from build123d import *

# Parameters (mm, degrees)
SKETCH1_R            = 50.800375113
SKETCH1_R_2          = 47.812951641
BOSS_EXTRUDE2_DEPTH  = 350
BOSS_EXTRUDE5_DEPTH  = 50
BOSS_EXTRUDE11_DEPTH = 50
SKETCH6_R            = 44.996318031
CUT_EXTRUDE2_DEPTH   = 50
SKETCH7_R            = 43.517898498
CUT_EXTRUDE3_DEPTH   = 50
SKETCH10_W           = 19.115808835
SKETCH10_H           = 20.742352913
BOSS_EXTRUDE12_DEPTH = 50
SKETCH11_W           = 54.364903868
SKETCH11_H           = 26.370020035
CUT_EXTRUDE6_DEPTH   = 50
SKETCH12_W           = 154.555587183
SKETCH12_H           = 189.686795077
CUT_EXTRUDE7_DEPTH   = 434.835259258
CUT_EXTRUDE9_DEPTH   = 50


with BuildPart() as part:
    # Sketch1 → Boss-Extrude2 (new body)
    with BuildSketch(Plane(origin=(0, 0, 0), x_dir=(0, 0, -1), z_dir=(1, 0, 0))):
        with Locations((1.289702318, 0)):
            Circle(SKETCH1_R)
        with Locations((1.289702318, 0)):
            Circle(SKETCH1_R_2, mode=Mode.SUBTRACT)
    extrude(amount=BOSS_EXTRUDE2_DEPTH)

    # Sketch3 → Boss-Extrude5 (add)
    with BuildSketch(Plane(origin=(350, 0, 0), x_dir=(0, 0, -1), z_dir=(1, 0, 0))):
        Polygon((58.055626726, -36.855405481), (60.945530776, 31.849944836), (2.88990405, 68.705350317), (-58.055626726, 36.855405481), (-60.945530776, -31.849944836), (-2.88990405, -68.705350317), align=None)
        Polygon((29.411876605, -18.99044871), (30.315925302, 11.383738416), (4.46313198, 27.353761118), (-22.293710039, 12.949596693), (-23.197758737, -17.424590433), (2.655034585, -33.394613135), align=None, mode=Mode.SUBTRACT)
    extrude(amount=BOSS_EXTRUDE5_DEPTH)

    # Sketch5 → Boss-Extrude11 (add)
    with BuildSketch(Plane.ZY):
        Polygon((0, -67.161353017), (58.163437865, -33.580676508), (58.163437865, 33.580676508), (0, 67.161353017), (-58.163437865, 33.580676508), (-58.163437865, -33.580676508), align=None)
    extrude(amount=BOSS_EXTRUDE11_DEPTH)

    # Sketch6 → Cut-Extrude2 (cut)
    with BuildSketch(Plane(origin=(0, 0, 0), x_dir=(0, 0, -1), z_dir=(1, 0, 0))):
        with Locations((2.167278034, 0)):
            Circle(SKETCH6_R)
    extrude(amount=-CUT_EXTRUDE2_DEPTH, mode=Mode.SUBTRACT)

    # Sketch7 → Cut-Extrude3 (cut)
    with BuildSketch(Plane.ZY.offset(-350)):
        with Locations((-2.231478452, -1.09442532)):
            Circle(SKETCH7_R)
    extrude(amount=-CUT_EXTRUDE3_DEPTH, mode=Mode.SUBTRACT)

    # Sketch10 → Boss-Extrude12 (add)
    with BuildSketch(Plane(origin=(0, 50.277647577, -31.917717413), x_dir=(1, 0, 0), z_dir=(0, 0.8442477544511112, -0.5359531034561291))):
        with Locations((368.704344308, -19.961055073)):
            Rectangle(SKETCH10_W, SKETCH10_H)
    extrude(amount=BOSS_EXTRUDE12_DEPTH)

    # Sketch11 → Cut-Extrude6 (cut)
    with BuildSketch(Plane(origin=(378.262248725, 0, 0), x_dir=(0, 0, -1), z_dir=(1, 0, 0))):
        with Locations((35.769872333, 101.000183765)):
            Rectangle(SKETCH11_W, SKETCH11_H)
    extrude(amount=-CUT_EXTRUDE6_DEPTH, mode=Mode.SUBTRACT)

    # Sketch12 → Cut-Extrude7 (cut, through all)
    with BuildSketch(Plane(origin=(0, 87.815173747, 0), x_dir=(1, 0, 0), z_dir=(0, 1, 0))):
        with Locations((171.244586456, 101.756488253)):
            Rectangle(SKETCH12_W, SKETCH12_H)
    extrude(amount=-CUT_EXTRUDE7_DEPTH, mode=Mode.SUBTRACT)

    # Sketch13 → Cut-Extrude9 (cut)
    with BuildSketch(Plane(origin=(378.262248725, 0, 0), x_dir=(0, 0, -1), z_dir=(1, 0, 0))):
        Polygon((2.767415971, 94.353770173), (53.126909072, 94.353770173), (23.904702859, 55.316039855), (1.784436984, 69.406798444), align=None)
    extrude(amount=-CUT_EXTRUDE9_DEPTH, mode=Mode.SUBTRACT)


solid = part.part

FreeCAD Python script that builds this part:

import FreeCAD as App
import Part
import Sketcher
Q = App.Units.Quantity


def add_polygon(sketch, points):
    """Adds a closed chain of lines whose ends are joined by coincident constraints."""
    first, n = sketch.GeometryCount, len(points)
    for a, b in zip(points, points[1:] + points[:1]):
        sketch.addGeometry(Part.LineSegment(App.Vector(*a, 0), App.Vector(*b, 0)), False)
    for i in range(n):
        sketch.addConstraint(Sketcher.Constraint("Coincident", first + i, 2, first + (i + 1) % n, 1))

doc = App.newDocument("Part")
body = doc.addObject("PartDesign::Body", "Body")

sketch1 = body.newObject("Sketcher::SketchObject", "Sketch")
sketch1.AttachmentSupport = (doc.getObject("YZ_Plane"), [""])
sketch1.MapMode = "FlatFace"
sketch1.addGeometry([
    Part.Circle(App.Vector(0, -1.289702, 0), App.Vector(0, 0, 1), 50.800375),
    Part.Circle(App.Vector(0, -1.289702, 0), App.Vector(0, 0, 1), 47.812952),
], False)
sketch1.addConstraint([
    Sketcher.Constraint("Coincident", 1, 3, 0, 3),
    Sketcher.Constraint("PointOnObject", 0, 3, -2),
    Sketcher.Constraint("Diameter", 0, 101.60075),
    Sketcher.Constraint("Diameter", 1, 95.625903),
    Sketcher.Constraint("DistanceY", 0, 3, -1, 1, 1.289702),
])
pad1 = body.newObject("PartDesign::Pad", "Pad")
pad1.Profile = sketch1
pad1.Length = 350

sketch2 = body.newObject("Sketcher::SketchObject", "Sketch001")
sketch2.AttachmentSupport = (doc.getObject("YZ_Plane"), [""])
sketch2.MapMode = "FlatFace"
sketch2.AttachmentOffset = App.Placement(App.Vector(0, 0, 350), App.Rotation())
add_polygon(sketch2, [(-36.855405, -58.055627), (31.849945, -60.945531), (68.70535, -2.889904), (36.855405, 58.055627), (-31.849945, 60.945531), (-68.70535, 2.889904)])
add_polygon(sketch2, [(11.383738, -30.315925), (-18.990449, -29.411877), (-33.394613, -2.655035), (-17.42459, 23.197759), (12.949597, 22.29371), (27.353761, -4.463132)])
sketch2.addConstraint([
    Sketcher.Constraint("Symmetric", 0, 2, 3, 2, -1, 1),
    Sketcher.Constraint("Symmetric", 1, 2, 4, 2, -1, 1),
    Sketcher.Constraint("Symmetric", 2, 2, 5, 2, -1, 1),
    Sketcher.Constraint("Parallel", 6, 9),
    Sketcher.Constraint("Parallel", 7, 10),
    Sketcher.Constraint("Parallel", 8, 11),
    Sketcher.Constraint("Equal", 0, 1),
    Sketcher.Constraint("Equal", 1, 2),
    Sketcher.Constraint("Equal", 6, 7),
    Sketcher.Constraint("Equal", 7, 8),
    Sketcher.Constraint("Equal", 8, 9),
    Sketcher.Constraint("Distance", 0, 68.766101),
    Sketcher.Constraint("DistanceX", 4, 2, 1, 2, 137.410701),
    Sketcher.Constraint("DistanceX", 4, 2, 6, 2, 49.714902),
    Sketcher.Constraint("DistanceY", 0, 2, 10, 2, 56.482399),
    Sketcher.Constraint("Distance", 6, 30.387638),
    Sketcher.Constraint("DistanceY", 0, 2, -1, 1, 60.945531),
    Sketcher.Constraint("DistanceX", 8, 2, -1, 1, 17.42459),
    Sketcher.Constraint("DistanceY", -1, 1, 8, 2, 23.197759),
    Sketcher.Constraint("DistanceY", -1, 1, 9, 2, 22.29371),
    Sketcher.Constraint("DistanceY", 1, 2, 2, 2, 60.945531),
])
pad2 = body.newObject("PartDesign::Pad", "Pad001")
pad2.Profile = sketch2
pad2.Length = 50

sketch3 = body.newObject("Sketcher::SketchObject", "Sketch002")
sketch3.AttachmentSupport = (doc.getObject("YZ_Plane"), [""])
sketch3.MapMode = "FlatFace"
add_polygon(sketch3, [(-67.161353, 0), (-33.580677, 58.163438), (33.580677, 58.163438), (67.161353, 0), (33.580677, -58.163438), (-33.580677, -58.163438)])
sketch3.addConstraint([
    Sketcher.Constraint("Horizontal", 1),
    Sketcher.Constraint("Horizontal", 4),
    Sketcher.Constraint("Symmetric", 0, 2, 3, 2, -1, 1),
    Sketcher.Constraint("Symmetric", 2, 2, 5, 2, -1, 1),
    Sketcher.Constraint("PointOnObject", 2, 2, -1),
    Sketcher.Constraint("Parallel", 2, 5),
    Sketcher.Constraint("Vertical", 1, 2, 3, 2),
    Sketcher.Constraint("Angle", 0, Q("60 deg")),
    Sketcher.Constraint("DistanceX", 1, 1, 1, 2, 67.161353),
    Sketcher.Constraint("DistanceX", 0, 2, 2, 2, 100.74203),
])
pad3 = body.newObject("PartDesign::Pad", "Pad002")
pad3.Profile = sketch3
pad3.Length = 50
pad3.Reversed = True

sketch4 = body.newObject("Sketcher::SketchObject", "Sketch003")
sketch4.AttachmentSupport = (doc.getObject("YZ_Plane"), [""])
sketch4.MapMode = "FlatFace"
sketch4.addGeometry(Part.Circle(App.Vector(0, -2.167278, 0), App.Vector(0, 0, 1), 44.996318), False)
sketch4.addConstraint([
    Sketcher.Constraint("PointOnObject", 0, 3, -2),
    Sketcher.Constraint("Diameter", 0, 89.992636),
    Sketcher.Constraint("DistanceY", 0, 3, -1, 1, 2.167278),
])
pocket1 = body.newObject("PartDesign::Pocket", "Pocket")
pocket1.Profile = sketch4
pocket1.Length = 50

sketch5 = body.newObject("Sketcher::SketchObject", "Sketch004")
sketch5.AttachmentSupport = (doc.getObject("YZ_Plane"), [""])
sketch5.MapMode = "FlatFace"
sketch5.AttachmentOffset = App.Placement(App.Vector(0, 0, 350), App.Rotation())
sketch5.addGeometry(Part.Circle(App.Vector(-1.094425, -2.231478, 0), App.Vector(0, 0, 1), 43.517898), False)
sketch5.addConstraint([
    Sketcher.Constraint("Diameter", 0, 87.035797),
    Sketcher.Constraint("DistanceY", 0, 3, -1, 1, 2.231478),
    Sketcher.Constraint("DistanceX", 0, 3, -1, 1, 1.094425),
])
pocket2 = body.newObject("PartDesign::Pocket", "Pocket001")
pocket2.Profile = sketch5
pocket2.Length = 50
pocket2.Reversed = True

sketch6 = body.newObject("Sketcher::SketchObject", "Sketch005")
sketch6.Placement = App.Placement(App.Vector(0, 50.277648, -31.917717), App.Rotation(App.Vector(1, 0, 0), App.Vector(0, -0.535953103, -0.844247754), App.Vector(0, 0.844247754, -0.535953103), "ZXY"))
add_polygon(sketch6, [(359.14644, -9.589879), (359.14644, -30.332231), (378.262249, -30.332231), (378.262249, -9.589879)])
sketch6.addConstraint([
    Sketcher.Constraint("Vertical", 0),
    Sketcher.Constraint("Horizontal", 1),
    Sketcher.Constraint("Vertical", 2),
    Sketcher.Constraint("Horizontal", 3),
    Sketcher.Constraint("DistanceX", 1, 1, 1, 2, 19.115809),
    Sketcher.Constraint("DistanceY", 0, 2, 0, 1, 20.742353),
    Sketcher.Constraint("DistanceX", -1, 1, 0, 2, 359.14644),
    Sketcher.Constraint("DistanceY", 0, 2, -1, 1, 30.332231),
])
pad4 = body.newObject("PartDesign::Pad", "Pad003")
pad4.Profile = sketch6
pad4.Length = 50

sketch7 = body.newObject("Sketcher::SketchObject", "Sketch006")
sketch7.AttachmentSupport = (doc.getObject("YZ_Plane"), [""])
sketch7.MapMode = "FlatFace"
sketch7.AttachmentOffset = App.Placement(App.Vector(0, 0, 378.262249), App.Rotation())
add_polygon(sketch7, [(114.185194, -8.58742), (87.815174, -8.58742), (87.815174, -62.952324), (114.185194, -62.952324)])
sketch7.addConstraint([
    Sketcher.Constraint("Horizontal", 0),
    Sketcher.Constraint("Vertical", 1),
    Sketcher.Constraint("Horizontal", 2),
    Sketcher.Constraint("Vertical", 3),
    Sketcher.Constraint("DistanceX", 0, 2, 0, 1, 26.37002),
    Sketcher.Constraint("DistanceY", 1, 2, 1, 1, 54.364904),
    Sketcher.Constraint("DistanceY", 0, 2, -1, 1, 8.58742),
    Sketcher.Constraint("DistanceX", -1, 1, 0, 2, 87.815174),
])
pocket3 = body.newObject("PartDesign::Pocket", "Pocket002")
pocket3.Profile = sketch7
pocket3.Length = 50

sketch8 = body.newObject("Sketcher::SketchObject", "Sketch007")
sketch8.AttachmentSupport = (doc.getObject("XZ_Plane"), [""])
sketch8.MapMode = "FlatFace"
sketch8.AttachmentOffset = App.Placement(App.Vector(0, 0, -87.815174), App.Rotation())
add_polygon(sketch8, [(93.966793, -196.599886), (93.966793, -6.913091), (248.52238, -6.913091), (248.52238, -196.599886)])
sketch8.addConstraint([
    Sketcher.Constraint("Vertical", 0),
    Sketcher.Constraint("Horizontal", 1),
    Sketcher.Constraint("Vertical", 2),
    Sketcher.Constraint("Horizontal", 3),
    Sketcher.Constraint("DistanceX", 1, 1, 1, 2, 154.555587),
    Sketcher.Constraint("DistanceY", 0, 1, 0, 2, 189.686795),
    Sketcher.Constraint("DistanceY", 0, 2, -1, 1, 6.913091),
    Sketcher.Constraint("DistanceX", -1, 1, 1, 2, 248.52238),
])
pocket4 = body.newObject("PartDesign::Pocket", "Pocket003")
pocket4.Profile = sketch8
pocket4.Type = "ThroughAll"
pocket4.Reversed = True

sketch9 = body.newObject("Sketcher::SketchObject", "Sketch008")
sketch9.AttachmentSupport = (doc.getObject("YZ_Plane"), [""])
sketch9.MapMode = "FlatFace"
sketch9.AttachmentOffset = App.Placement(App.Vector(0, 0, 378.262249), App.Rotation())
add_polygon(sketch9, [(94.35377, -53.126909), (94.35377, -2.767416), (69.406798, -1.784437), (55.31604, -23.904703)])
sketch9.addConstraint([
    Sketcher.Constraint("Vertical", 0),
    Sketcher.Constraint("DistanceX", -1, 1, 1, 2, 69.406798),
    Sketcher.Constraint("Distance", 1, 24.96633),
    Sketcher.Constraint("Distance", 3, 48.763529),
    Sketcher.Constraint("DistanceY", 0, 1, 0, 2, 50.359493),
    Sketcher.Constraint("DistanceX", -1, 1, 0, 2, 94.35377),
    Sketcher.Constraint("DistanceX", -1, 1, 2, 2, 55.31604),
    Sketcher.Constraint("DistanceY", 3, 2, -1, 1, 53.126909),
])
pocket5 = body.newObject("PartDesign::Pocket", "Pocket004")
pocket5.Profile = sketch9
pocket5.Length = 50

doc.recompute()
